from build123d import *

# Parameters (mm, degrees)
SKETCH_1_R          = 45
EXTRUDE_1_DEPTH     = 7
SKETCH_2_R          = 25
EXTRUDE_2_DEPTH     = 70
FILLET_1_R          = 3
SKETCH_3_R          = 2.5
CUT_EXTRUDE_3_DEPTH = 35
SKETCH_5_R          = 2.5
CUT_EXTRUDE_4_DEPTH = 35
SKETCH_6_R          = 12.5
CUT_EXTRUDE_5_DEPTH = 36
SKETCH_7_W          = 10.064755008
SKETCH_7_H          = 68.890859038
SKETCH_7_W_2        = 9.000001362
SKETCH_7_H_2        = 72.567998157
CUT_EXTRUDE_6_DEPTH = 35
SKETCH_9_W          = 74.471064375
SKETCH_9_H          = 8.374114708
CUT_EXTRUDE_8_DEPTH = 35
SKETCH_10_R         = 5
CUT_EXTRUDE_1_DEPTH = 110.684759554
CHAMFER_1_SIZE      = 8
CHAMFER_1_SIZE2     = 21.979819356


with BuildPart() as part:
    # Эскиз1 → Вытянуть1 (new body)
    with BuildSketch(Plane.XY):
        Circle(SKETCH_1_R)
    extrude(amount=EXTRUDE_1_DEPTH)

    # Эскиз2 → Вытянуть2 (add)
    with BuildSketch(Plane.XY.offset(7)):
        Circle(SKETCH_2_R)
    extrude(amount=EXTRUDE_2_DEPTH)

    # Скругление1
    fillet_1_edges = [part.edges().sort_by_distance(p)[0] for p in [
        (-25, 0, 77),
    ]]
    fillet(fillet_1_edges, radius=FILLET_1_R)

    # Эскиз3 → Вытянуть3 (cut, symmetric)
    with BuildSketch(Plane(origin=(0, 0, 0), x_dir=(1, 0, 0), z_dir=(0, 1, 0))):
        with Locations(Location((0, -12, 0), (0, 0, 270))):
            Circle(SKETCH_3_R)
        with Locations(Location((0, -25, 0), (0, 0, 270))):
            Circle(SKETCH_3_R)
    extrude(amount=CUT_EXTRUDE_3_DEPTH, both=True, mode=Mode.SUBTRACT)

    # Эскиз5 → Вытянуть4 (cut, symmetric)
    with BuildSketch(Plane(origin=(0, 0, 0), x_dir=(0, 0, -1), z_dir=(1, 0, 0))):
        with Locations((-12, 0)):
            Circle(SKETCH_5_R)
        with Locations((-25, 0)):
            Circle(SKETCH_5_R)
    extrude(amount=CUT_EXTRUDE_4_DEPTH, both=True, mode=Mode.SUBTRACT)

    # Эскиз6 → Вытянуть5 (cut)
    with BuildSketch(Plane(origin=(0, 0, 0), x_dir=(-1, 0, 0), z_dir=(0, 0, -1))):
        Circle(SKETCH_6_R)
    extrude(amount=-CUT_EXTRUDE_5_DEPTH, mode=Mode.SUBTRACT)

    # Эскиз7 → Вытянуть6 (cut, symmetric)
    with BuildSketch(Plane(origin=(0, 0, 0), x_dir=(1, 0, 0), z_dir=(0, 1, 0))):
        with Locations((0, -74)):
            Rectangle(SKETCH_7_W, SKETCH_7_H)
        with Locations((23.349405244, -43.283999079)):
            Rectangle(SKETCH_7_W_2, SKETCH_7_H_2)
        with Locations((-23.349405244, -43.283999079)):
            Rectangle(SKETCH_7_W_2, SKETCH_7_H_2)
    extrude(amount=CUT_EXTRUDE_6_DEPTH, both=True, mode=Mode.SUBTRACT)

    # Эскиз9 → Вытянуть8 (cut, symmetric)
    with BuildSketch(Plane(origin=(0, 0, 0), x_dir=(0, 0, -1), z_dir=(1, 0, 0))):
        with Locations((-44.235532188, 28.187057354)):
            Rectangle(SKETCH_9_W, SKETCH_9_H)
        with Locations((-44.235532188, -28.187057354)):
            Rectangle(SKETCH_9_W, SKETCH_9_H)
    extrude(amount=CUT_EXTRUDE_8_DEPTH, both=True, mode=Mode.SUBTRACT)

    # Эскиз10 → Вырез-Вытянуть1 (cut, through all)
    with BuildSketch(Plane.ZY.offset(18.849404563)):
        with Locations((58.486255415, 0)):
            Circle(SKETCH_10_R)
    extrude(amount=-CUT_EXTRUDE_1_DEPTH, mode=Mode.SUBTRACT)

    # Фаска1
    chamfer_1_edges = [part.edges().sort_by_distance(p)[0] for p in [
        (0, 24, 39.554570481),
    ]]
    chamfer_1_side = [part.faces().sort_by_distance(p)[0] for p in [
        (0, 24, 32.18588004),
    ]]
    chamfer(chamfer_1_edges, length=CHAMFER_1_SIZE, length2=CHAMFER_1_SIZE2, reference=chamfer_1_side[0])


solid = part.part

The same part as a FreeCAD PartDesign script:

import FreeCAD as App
import Part
import Sketcher


def edges_at(feature, points):
    """Names of the edges that pass closest to the given points."""
    edges = feature.Shape.Edges
    near = lambda p: min(range(len(edges)), key=lambda i: edges[i].distToShape(Part.Vertex(*p))[0])
    return sorted({f"Edge{near(p) + 1}" for p in points})


def add_polygon(sketch, points):
    """Adds a closed chain of lines whose ends are joined by coincident constraints."""
    first, n = sketch.GeometryCount, len(points)
    for a, b in zip(points, points[1:] + points[:1]):
        sketch.addGeometry(Part.LineSegment(App.Vector(*a, 0), App.Vector(*b, 0)), False)
    for i in range(n):
        sketch.addConstraint(Sketcher.Constraint("Coincident", first + i, 2, first + (i + 1) % n, 1))

doc = App.newDocument("Part")
body = doc.addObject("PartDesign::Body", "Body")

# Sketch on XY plane
sketch1 = body.newObject("Sketcher::SketchObject", "Sketch")
sketch1.AttachmentSupport = (doc.getObject("XY_Plane"), [""])
sketch1.MapMode = "FlatFace"
sketch1.addGeometry(Part.Circle(App.Vector(0, 0, 0), App.Vector(0, 0, 1), 45), False)
sketch1.addConstraint(Sketcher.Constraint("Coincident", 0, 3, -1, 1))
sketch1.addConstraint(Sketcher.Constraint("Diameter", 0, 90.0))
pad1 = body.newObject("PartDesign::Pad", "Pad")
pad1.Profile = sketch1
pad1.Length = 7

# Sketch on XY plane
sketch2 = body.newObject("Sketcher::SketchObject", "Sketch001")
sketch2.AttachmentSupport = (doc.getObject("XY_Plane"), [""])
sketch2.MapMode = "FlatFace"
sketch2.AttachmentOffset = App.Placement(App.Vector(0, 0, 7), App.Rotation())
sketch2.addGeometry(Part.Circle(App.Vector(0, 0, 0), App.Vector(0, 0, 1), 25), False)
sketch2.addConstraint(Sketcher.Constraint("Coincident", 0, 3, -1, 1))
sketch2.addConstraint(Sketcher.Constraint("Diameter", 0, 50.0))
pad2 = body.newObject("PartDesign::Pad", "Pad001")
pad2.Profile = sketch2
pad2.Length = 70
doc.recompute()

fillet = body.newObject("PartDesign::Fillet", "Fillet")
fillet.Base = (pad2, edges_at(pad2, [(-25, 0, 77)]))
fillet.Radius = 3

# Sketch on XZ plane
sketch3 = body.newObject("Sketcher::SketchObject", "Sketch002")
sketch3.AttachmentSupport = (doc.getObject("XZ_Plane"), [""])
sketch3.MapMode = "FlatFace"
sketch3.addGeometry(Part.Circle(App.Vector(0, 12, 0), App.Vector(0, 0, 1), 2.5), False)
sketch3.addGeometry(Part.Circle(App.Vector(0, 25, 0), App.Vector(0, 0, 1), 2.5), False)
sketch3.addConstraint(Sketcher.Constraint("Equal", 0, 1))
sketch3.addConstraint(Sketcher.Constraint("PointOnObject", 0, 3, -2))
sketch3.addConstraint(Sketcher.Constraint("PointOnObject", 1, 3, -2))
sketch3.addConstraint(Sketcher.Constraint("Diameter", 0, 5.0))
sketch3.addConstraint(Sketcher.Constraint("DistanceY", -1, 1, 0, 3, 12.0))
sketch3.addConstraint(Sketcher.Constraint("DistanceY", -1, 1, 1, 3, 25.0))
pocket1 = body.newObject("PartDesign::Pocket", "Pocket")
pocket1.Profile = sketch3
pocket1.Length = 70
pocket1.Midplane = True

# Sketch on YZ plane
sketch4 = body.newObject("Sketcher::SketchObject", "Sketch003")
sketch4.AttachmentSupport = (doc.getObject("YZ_Plane"), [""])
sketch4.MapMode = "FlatFace"
sketch4.addGeometry(Part.Circle(App.Vector(0, 12, 0), App.Vector(0, 0, 1), 2.5), False)
sketch4.addGeometry(Part.Circle(App.Vector(0, 25, 0), App.Vector(0, 0, 1), 2.5), False)
sketch4.addConstraint(Sketcher.Constraint("Equal", 0, 1))
sketch4.addConstraint(Sketcher.Constraint("PointOnObject", 0, 3, -2))
sketch4.addConstraint(Sketcher.Constraint("PointOnObject", 1, 3, -2))
sketch4.addConstraint(Sketcher.Constraint("Diameter", 0, 5.0))
sketch4.addConstraint(Sketcher.Constraint("DistanceY", -1, 1, 0, 3, 12.0))
sketch4.addConstraint(Sketcher.Constraint("DistanceY", -1, 1, 1, 3, 25.0))
pocket2 = body.newObject("PartDesign::Pocket", "Pocket001")
pocket2.Profile = sketch4
pocket2.Length = 70
pocket2.Midplane = True

# Sketch on XY plane
sketch5 = body.newObject("Sketcher::SketchObject", "Sketch004")
sketch5.AttachmentSupport = (doc.getObject("XY_Plane"), [""])
sketch5.MapMode = "FlatFace"
sketch5.addGeometry(Part.Circle(App.Vector(0, 0, 0), App.Vector(0, 0, 1), 12), False)
sketch5.addConstraint(Sketcher.Constraint("Coincident", 0, 3, -1, 1))
sketch5.addConstraint(Sketcher.Constraint("Diameter", 0, 25.0))
pocket3 = body.newObject("PartDesign::Pocket", "Pocket002")
pocket3.Profile = sketch5
pocket3.Length = 36
pocket3.Reversed = True

# Sketch on XZ plane
sketch6 = body.newObject("Sketcher::SketchObject", "Sketch005")
sketch6.AttachmentSupport = (doc.getObject("XZ_Plane"), [""])
sketch6.MapMode = "FlatFace"
add_polygon(sketch6, [(-5, 40), (-5, 108), (5, 108), (5, 40)])  # lines 0-3
add_polygon(sketch6, [(19, 7), (19, 80), (28, 80), (28, 7)])  # lines 4-7
add_polygon(sketch6, [(-28, 7), (-28, 80), (-19, 80), (-19, 7)])  # lines 8-11
sketch6.addConstraint(Sketcher.Constraint("Vertical", 0))
sketch6.addConstraint(Sketcher.Constraint("Horizontal", 1))
sketch6.addConstraint(Sketcher.Constraint("Vertical", 2))
sketch6.addConstraint(Sketcher.Constraint("Horizontal", 3))
sketch6.addConstraint(Sketcher.Constraint("Vertical", 4))
sketch6.addConstraint(Sketcher.Constraint("Horizontal", 5))
sketch6.addConstraint(Sketcher.Constraint("Vertical", 6))
sketch6.addConstraint(Sketcher.Constraint("Horizontal", 7))
sketch6.addConstraint(Sketcher.Constraint("Vertical", 8))
sketch6.addConstraint(Sketcher.Constraint("Horizontal", 9))
sketch6.addConstraint(Sketcher.Constraint("Vertical", 10))
sketch6.addConstraint(Sketcher.Constraint("Horizontal", 11))
sketch6.addConstraint(Sketcher.Constraint("Symmetric", 5, 2, 8, 2, -2))
sketch6.addConstraint(Sketcher.Constraint("Symmetric", 7, 2, 10, 2, -2))
sketch6.addConstraint(Sketcher.Constraint("DistanceX", 5, 1, 5, 2, 9.000001))
sketch6.addConstraint(Sketcher.Constraint("DistanceY", -1, 1, 6, 2, 7.0))
sketch6.addConstraint(Sketcher.Constraint("DistanceY", 4, 1, 4, 2, 72.567998))
sketch6.addConstraint(Sketcher.Constraint("DistanceY", 0, 1, 0, 2, 68.890859))
sketch6.addConstraint(Sketcher.Constraint("DistanceX", 1, 1, 1, 2, 10.064755))
sketch6.addConstraint(Sketcher.Constraint("DistanceY", -1, 1, 0, 2, 108.44543))
sketch6.addConstraint(Sketcher.Constraint("DistanceX", 1, 2, 5, 2, 22.817028))
sketch6.addConstraint(Sketcher.Constraint("DistanceX", 8, 2, 0, 2, 22.817028))
pocket4 = body.newObject("PartDesign::Pocket", "Pocket003")
pocket4.Profile = sketch6
pocket4.Length = 70
pocket4.Midplane = True

# Sketch on YZ plane
sketch7 = body.newObject("Sketcher::SketchObject", "Sketch006")
sketch7.AttachmentSupport = (doc.getObject("YZ_Plane"), [""])
sketch7.MapMode = "FlatFace"
add_polygon(sketch7, [(32, 81), (24, 81), (24, 7), (32, 7)])  # lines 0-3
add_polygon(sketch7, [(-24, 81), (-32, 81), (-32, 7), (-24, 7)])  # lines 4-7
sketch7.addConstraint(Sketcher.Constraint("Horizontal", 0))
sketch7.addConstraint(Sketcher.Constraint("Vertical", 1))
sketch7.addConstraint(Sketcher.Constraint("Horizontal", 2))
sketch7.addConstraint(Sketcher.Constraint("Vertical", 3))
sketch7.addConstraint(Sketcher.Constraint("Horizontal", 4))
sketch7.addConstraint(Sketcher.Constraint("Vertical", 5))
sketch7.addConstraint(Sketcher.Constraint("Horizontal", 6))
sketch7.addConstraint(Sketcher.Constraint("Vertical", 7))
sketch7.addConstraint(Sketcher.Constraint("Symmetric", 3, 2, 4, 2, -2))
sketch7.addConstraint(Sketcher.Constraint("Symmetric", 1, 2, 6, 2, -2))
sketch7.addConstraint(Sketcher.Constraint("DistanceX", -1, 1, 0, 2, 24.0))
sketch7.addConstraint(Sketcher.Constraint("DistanceY", -1, 1, 1, 2, 7.0))
sketch7.addConstraint(Sketcher.Constraint("DistanceX", 0, 2, 0, 1, 8.374115))
sketch7.addConstraint(Sketcher.Constraint("DistanceY", 1, 2, 1, 1, 74.471064))
pocket5 = body.newObject("PartDesign::Pocket", "Pocket004")
pocket5.Profile = sketch7
pocket5.Length = 70
pocket5.Midplane = True

# Sketch on YZ plane
sketch8 = body.newObject("Sketcher::SketchObject", "Sketch007")
sketch8.AttachmentSupport = (doc.getObject("YZ_Plane"), [""])
sketch8.MapMode = "FlatFace"
sketch8.AttachmentOffset = App.Placement(App.Vector(0, 0, -18.849405), App.Rotation())
sketch8.addGeometry(Part.Circle(App.Vector(0, 58, 0), App.Vector(0, 0, 1), 5), False)
sketch8.addConstraint(Sketcher.Constraint("PointOnObject", 0, 3, -2))
sketch8.addConstraint(Sketcher.Constraint("Diameter", 0, 10.0))
sketch8.addConstraint(Sketcher.Constraint("DistanceY", -1, 1, 0, 3, 58.486255))
pocket6 = body.newObject("PartDesign::Pocket", "Pocket005")
pocket6.Profile = sketch8
pocket6.Type = "ThroughAll"
pocket6.Reversed = True
doc.recompute()

chamfer = body.newObject("PartDesign::Chamfer", "Chamfer")
chamfer.Base = (pocket6, edges_at(pocket6, [(0, 24, 39.555)]))
chamfer.ChamferType = "Two distances"
chamfer.Size = 8
chamfer.Size2 = 21.979819

doc.recompute()
